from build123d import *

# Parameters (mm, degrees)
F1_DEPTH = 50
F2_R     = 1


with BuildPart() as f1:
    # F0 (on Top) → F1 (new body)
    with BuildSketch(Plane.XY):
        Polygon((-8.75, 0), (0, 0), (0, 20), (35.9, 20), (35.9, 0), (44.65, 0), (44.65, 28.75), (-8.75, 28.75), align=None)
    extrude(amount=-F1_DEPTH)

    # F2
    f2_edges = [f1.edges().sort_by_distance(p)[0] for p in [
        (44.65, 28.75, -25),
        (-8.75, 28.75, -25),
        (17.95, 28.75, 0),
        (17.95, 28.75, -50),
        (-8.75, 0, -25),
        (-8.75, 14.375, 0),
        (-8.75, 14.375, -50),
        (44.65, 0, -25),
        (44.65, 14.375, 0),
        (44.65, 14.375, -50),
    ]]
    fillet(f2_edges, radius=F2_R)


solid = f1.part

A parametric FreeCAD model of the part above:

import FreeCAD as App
import Part
import Sketcher


def edges_at(feature, points):
    """Names of the edges that pass closest to the given points."""
    edges = feature.Shape.Edges
    near = lambda p: min(range(len(edges)), key=lambda i: edges[i].distToShape(Part.Vertex(*p))[0])
    return sorted({f"Edge{near(p) + 1}" for p in points})


def add_polygon(sketch, points):
    """Adds a closed chain of lines whose ends are joined by coincident constraints."""
    first, n = sketch.GeometryCount, len(points)
    for a, b in zip(points, points[1:] + points[:1]):
        sketch.addGeometry(Part.LineSegment(App.Vector(*a, 0), App.Vector(*b, 0)), False)
    for i in range(n):
        sketch.addConstraint(Sketcher.Constraint("Coincident", first + i, 2, first + (i + 1) % n, 1))

doc = App.newDocument("Part")
params = doc.addObject("Spreadsheet::Sheet", "Params")
for row, (alias, value) in enumerate([
    ("sketch1_height", "20 mm"),
    ("sketch1_width", "35.9 mm"),
    ("sketch1_width2", "53.4 mm"),
    ("sketch1_height2", "28.75 mm"),
    ("pad1_length", "50 mm"),
    ("fillet_radius", "1 mm"),
], start=1):
    params.set(f"A{row}", alias)
    params.set(f"B{row}", "=" + value)
    params.setAlias(f"B{row}", alias)

body = doc.addObject("PartDesign::Body", "Body")

sketch1 = doc.addObject("Sketcher::SketchObject", "Sketch")
body.addObject(sketch1)
sketch1.AttachmentSupport = (doc.XY_Plane, [""])
sketch1.MapMode = "FlatFace"
add_polygon(sketch1, [(-9, 0), (0, 0), (0, 20), (36, 20), (36, 0), (45, 0), (45, 29), (-9, 29)])
sketch1.addConstraint([
    Sketcher.Constraint("Horizontal", 0),
    Sketcher.Constraint("Vertical", 1),
    Sketcher.Constraint("Horizontal", 2),
    Sketcher.Constraint("Vertical", 3),
    Sketcher.Constraint("Horizontal", 4),
    Sketcher.Constraint("Vertical", 5),
    Sketcher.Constraint("Horizontal", 6),
    Sketcher.Constraint("Vertical", 7),
    Sketcher.Constraint("Coincident", 0, 2, -1, 1),
    Sketcher.Constraint("PointOnObject", 3, 2, -1),
    Sketcher.Constraint("Equal", 0, 4),
    Sketcher.Constraint("DistanceY", 1, 1, 1, 2, 20.0),
    Sketcher.Constraint("DistanceX", 2, 1, 2, 2, 35.9),
    Sketcher.Constraint("DistanceX", 6, 2, 6, 1, 53.4),
    Sketcher.Constraint("DistanceY", 5, 1, 5, 2, 28.75),
])
sketch1.setExpression("Constraints[19]", "Params.sketch1_height")
sketch1.setExpression("Constraints[20]", "Params.sketch1_width")
sketch1.setExpression("Constraints[21]", "Params.sketch1_width2")
sketch1.setExpression("Constraints[22]", "Params.sketch1_height2")
pad1 = doc.addObject("PartDesign::Pad", "Pad")
body.addObject(pad1)
pad1.Profile = sketch1
pad1.setExpression("Length", "Params.pad1_length")
pad1.Reversed = True
doc.recompute()

fillet = doc.addObject("PartDesign::Fillet", "Fillet")
body.addObject(fillet)
fillet.Base = (pad1, edges_at(pad1, [
    (44.65, 28.75, -25),
    (-8.75, 28.75, -25),
    (17.95, 28.75, 0),
    (17.95, 28.75, -50),
    (-8.75, 0, -25),
    (-8.75, 14.375, 0),
    (-8.75, 14.375, -50),
    (44.65, 0, -25),
    (44.65, 14.375, 0),
    (44.65, 14.375, -50),
]))
fillet.setExpression("Radius", "Params.fillet_radius")

doc.recompute()
